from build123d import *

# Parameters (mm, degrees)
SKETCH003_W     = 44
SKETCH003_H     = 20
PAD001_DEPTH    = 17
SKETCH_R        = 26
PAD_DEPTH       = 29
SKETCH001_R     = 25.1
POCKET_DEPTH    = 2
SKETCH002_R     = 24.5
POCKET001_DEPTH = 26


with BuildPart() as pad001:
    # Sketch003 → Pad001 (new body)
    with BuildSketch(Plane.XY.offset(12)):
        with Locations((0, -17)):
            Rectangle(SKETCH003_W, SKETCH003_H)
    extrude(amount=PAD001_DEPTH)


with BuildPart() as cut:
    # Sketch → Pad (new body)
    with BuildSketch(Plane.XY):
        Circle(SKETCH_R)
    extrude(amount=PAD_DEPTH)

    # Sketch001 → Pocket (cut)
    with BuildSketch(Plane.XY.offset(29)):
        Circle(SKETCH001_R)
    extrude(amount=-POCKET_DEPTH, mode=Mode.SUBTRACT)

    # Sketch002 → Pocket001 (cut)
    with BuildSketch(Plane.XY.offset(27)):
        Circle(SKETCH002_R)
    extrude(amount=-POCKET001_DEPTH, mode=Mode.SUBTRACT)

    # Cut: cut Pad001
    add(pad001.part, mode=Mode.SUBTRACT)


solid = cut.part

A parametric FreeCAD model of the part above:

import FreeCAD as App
import Part
import Sketcher


def add_polygon(sketch, points):
    """Adds a closed chain of lines whose ends are joined by coincident constraints."""
    first, n = sketch.GeometryCount, len(points)
    for a, b in zip(points, points[1:] + points[:1]):
        sketch.addGeometry(Part.LineSegment(App.Vector(*a, 0), App.Vector(*b, 0)), False)
    for i in range(n):
        sketch.addConstraint(Sketcher.Constraint("Coincident", first + i, 2, first + (i + 1) % n, 1))

doc = App.newDocument("Part")
body = doc.addObject("PartDesign::Body", "Body")

# Sketch on XY plane
sketch1 = doc.addObject("Sketcher::SketchObject", "Sketch")
body.addObject(sketch1)
sketch1.AttachmentSupport = (doc.XY_Plane, [""])
sketch1.MapMode = "FlatFace"
sketch1.AttachmentOffset = App.Placement(App.Vector(0, 0, 12), App.Rotation())
add_polygon(sketch1, [(-22, -7), (-22, -27), (22, -27), (22, -7)])  # lines 0-3
sketch1.addConstraint(Sketcher.Constraint("Vertical", 0))
sketch1.addConstraint(Sketcher.Constraint("Horizontal", 1))
sketch1.addConstraint(Sketcher.Constraint("Vertical", 2))
sketch1.addConstraint(Sketcher.Constraint("Horizontal", 3))
sketch1.addConstraint(Sketcher.Constraint("DistanceX", 1, 1, 1, 2, 44.0))
sketch1.addConstraint(Sketcher.Constraint("DistanceY", 0, 2, 0, 1, 20.0))
sketch1.addConstraint(Sketcher.Constraint("DistanceX", 0, 2, -1, 1, 22.0))
sketch1.addConstraint(Sketcher.Constraint("DistanceY", 0, 2, -1, 1, 27.0))
pad1 = doc.addObject("PartDesign::Pad", "Pad")
body.addObject(pad1)
pad1.Profile = sketch1
pad1.Length = 17
body2 = doc.addObject("PartDesign::Body", "Body001")

# Sketch on XY plane
sketch2 = doc.addObject("Sketcher::SketchObject", "Sketch001")
body2.addObject(sketch2)
sketch2.AttachmentSupport = (doc.getObject("XY_Plane001"), [""])
sketch2.MapMode = "FlatFace"
sketch2.addGeometry(Part.Circle(App.Vector(0, 0, 0), App.Vector(0, 0, 1), 26), False)
sketch2.addConstraint(Sketcher.Constraint("Coincident", 0, 3, -1, 1))
sketch2.addConstraint(Sketcher.Constraint("Diameter", 0, 52.0))
pad2 = doc.addObject("PartDesign::Pad", "Pad001")
body2.addObject(pad2)
pad2.Profile = sketch2
pad2.Length = 29

# Sketch on XY plane
sketch3 = doc.addObject("Sketcher::SketchObject", "Sketch002")
body2.addObject(sketch3)
sketch3.AttachmentSupport = (doc.getObject("XY_Plane001"), [""])
sketch3.MapMode = "FlatFace"
sketch3.AttachmentOffset = App.Placement(App.Vector(0, 0, 29), App.Rotation())
sketch3.addGeometry(Part.Circle(App.Vector(0, 0, 0), App.Vector(0, 0, 1), 25), False)
sketch3.addConstraint(Sketcher.Constraint("Coincident", 0, 3, -1, 1))
sketch3.addConstraint(Sketcher.Constraint("Diameter", 0, 50.2))
pocket1 = doc.addObject("PartDesign::Pocket", "Pocket")
body2.addObject(pocket1)
pocket1.Profile = sketch3
pocket1.Length = 2

# Sketch on XY plane
sketch4 = doc.addObject("Sketcher::SketchObject", "Sketch003")
body2.addObject(sketch4)
sketch4.AttachmentSupport = (doc.getObject("XY_Plane001"), [""])
sketch4.MapMode = "FlatFace"
sketch4.AttachmentOffset = App.Placement(App.Vector(0, 0, 27), App.Rotation())
sketch4.addGeometry(Part.Circle(App.Vector(0, 0, 0), App.Vector(0, 0, 1), 24), False)
sketch4.addConstraint(Sketcher.Constraint("Coincident", 0, 3, -1, 1))
sketch4.addConstraint(Sketcher.Constraint("Diameter", 0, 49.0))
pocket2 = doc.addObject("PartDesign::Pocket", "Pocket001")
body2.addObject(pocket2)
pocket2.Profile = sketch4
pocket2.Length = 26
doc.recompute()

boolean = doc.addObject("PartDesign::Boolean", "Boolean")
body2.addObject(boolean)
boolean.Type = "Cut"
boolean.addObjects([body])

doc.recompute()
